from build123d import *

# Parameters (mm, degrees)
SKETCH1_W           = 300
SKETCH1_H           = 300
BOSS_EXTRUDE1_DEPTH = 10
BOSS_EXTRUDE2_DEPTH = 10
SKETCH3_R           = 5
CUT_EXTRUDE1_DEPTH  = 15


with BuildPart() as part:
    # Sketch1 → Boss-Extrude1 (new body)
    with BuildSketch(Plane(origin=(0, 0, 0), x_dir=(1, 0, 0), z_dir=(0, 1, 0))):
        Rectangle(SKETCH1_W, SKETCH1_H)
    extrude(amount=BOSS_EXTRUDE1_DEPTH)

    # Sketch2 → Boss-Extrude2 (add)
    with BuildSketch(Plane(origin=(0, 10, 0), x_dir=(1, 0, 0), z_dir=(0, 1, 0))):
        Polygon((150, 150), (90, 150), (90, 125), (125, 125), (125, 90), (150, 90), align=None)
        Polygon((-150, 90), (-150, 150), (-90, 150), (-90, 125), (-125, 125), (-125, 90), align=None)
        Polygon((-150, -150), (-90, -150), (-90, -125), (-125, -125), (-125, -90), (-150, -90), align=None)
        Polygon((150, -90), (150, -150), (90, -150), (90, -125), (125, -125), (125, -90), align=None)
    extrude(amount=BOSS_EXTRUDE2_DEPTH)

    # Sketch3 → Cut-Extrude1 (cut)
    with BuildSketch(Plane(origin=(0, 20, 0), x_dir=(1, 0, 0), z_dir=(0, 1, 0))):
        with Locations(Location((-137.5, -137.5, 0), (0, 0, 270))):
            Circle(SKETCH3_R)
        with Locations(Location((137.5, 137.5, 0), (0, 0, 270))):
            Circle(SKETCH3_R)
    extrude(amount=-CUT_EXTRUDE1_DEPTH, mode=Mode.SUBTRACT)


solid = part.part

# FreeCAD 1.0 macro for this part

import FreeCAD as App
import Part
import Sketcher
from FreeCAD import Vector
Q = App.Units.Quantity


def add_polygon(sketch, points):
    """Adds a closed chain of lines whose ends are joined by coincident constraints."""
    first, n = sketch.GeometryCount, len(points)
    for a, b in zip(points, points[1:] + points[:1]):
        sketch.addGeometry(Part.LineSegment(App.Vector(*a, 0), App.Vector(*b, 0)), False)
    for i in range(n):
        sketch.addConstraint(Sketcher.Constraint("Coincident", first + i, 2, first + (i + 1) % n, 1))

doc = App.newDocument("Part")
body = doc.addObject("PartDesign::Body", "Body")

sketch1 = doc.addObject("Sketcher::SketchObject", "Sketch")
body.addObject(sketch1)
sketch1.AttachmentSupport = (doc.XZ_Plane, [""])
sketch1.MapMode = "FlatFace"
add_polygon(sketch1, [(-150, -150), (-150, 150), (150, 150), (150, -150)])
sketch1.addConstraint([
    Sketcher.Constraint("Vertical", 0),
    Sketcher.Constraint("Horizontal", 1),
    Sketcher.Constraint("Vertical", 2),
    Sketcher.Constraint("Horizontal", 3),
    Sketcher.Constraint("Symmetric", 0, 2, 2, 2, -1, 1),
    Sketcher.Constraint("Equal", 3, 0),
    Sketcher.Constraint("DistanceX", 1, 1, 1, 2, Q("300 mm")),
])
pad1 = doc.addObject("PartDesign::Pad", "Pad")
body.addObject(pad1)
pad1.Profile = sketch1
pad1.Length = 10
pad1.Reversed = True

sketch2 = doc.addObject("Sketcher::SketchObject", "Sketch001")
body.addObject(sketch2)
sketch2.AttachmentSupport = (doc.XZ_Plane, [""])
sketch2.MapMode = "FlatFace"
sketch2.AttachmentOffset = App.Placement(Vector(0, 0, -10), App.Rotation())
add_polygon(sketch2, [(150, -150), (90, -150), (90, -125), (125, -125), (125, -90), (150, -90)])
add_polygon(sketch2, [(-150, -150), (-150, -90), (-125, -90), (-125, -125), (-90, -125), (-90, -150)])
add_polygon(sketch2, [(-150, 150), (-90, 150), (-90, 125), (-125, 125), (-125, 90), (-150, 90)])
add_polygon(sketch2, [(150, 150), (150, 90), (125, 90), (125, 125), (90, 125), (90, 150)])
sketch2.addConstraint([
    Sketcher.Constraint("Horizontal", 0),
    Sketcher.Constraint("Vertical", 1),
    Sketcher.Constraint("Horizontal", 2),
    Sketcher.Constraint("Vertical", 3),
    Sketcher.Constraint("Horizontal", 4),
    Sketcher.Constraint("Vertical", 5),
    Sketcher.Constraint("Vertical", 6),
    Sketcher.Constraint("Horizontal", 7),
    Sketcher.Constraint("Vertical", 8),
    Sketcher.Constraint("Horizontal", 9),
    Sketcher.Constraint("Vertical", 10),
    Sketcher.Constraint("Horizontal", 11),
    Sketcher.Constraint("Horizontal", 12),
    Sketcher.Constraint("Vertical", 13),
    Sketcher.Constraint("Horizontal", 14),
    Sketcher.Constraint("Vertical", 15),
    Sketcher.Constraint("Horizontal", 16),
    Sketcher.Constraint("Vertical", 17),
    Sketcher.Constraint("Vertical", 18),
    Sketcher.Constraint("Horizontal", 19),
    Sketcher.Constraint("Vertical", 20),
    Sketcher.Constraint("Horizontal", 21),
    Sketcher.Constraint("Vertical", 22),
    Sketcher.Constraint("Horizontal", 23),
    Sketcher.Constraint("Symmetric", 0, 2, 12, 2, -1, 1),
    Sketcher.Constraint("Symmetric", 2, 2, 14, 2, -1, 1),
    Sketcher.Constraint("Symmetric", 4, 2, 16, 2, -1, 1),
    Sketcher.Constraint("Symmetric", 6, 2, 18, 2, -1, 1),
    Sketcher.Constraint("Symmetric", 8, 2, 20, 2, -1, 1),
    Sketcher.Constraint("Symmetric", 10, 2, 22, 2, -1, 1),
    Sketcher.Constraint("Symmetric", 4, 2, 6, 2, -2),
    Sketcher.Constraint("Symmetric", 2, 2, 8, 2, -2),
    Sketcher.Constraint("Symmetric", 0, 2, 10, 2, -2),
    Sketcher.Constraint("Equal", 19, 1),
    Sketcher.Constraint("Equal", 21, 3),
    Sketcher.Constraint("DistanceX", 0, 2, 0, 1, Q("60 mm")),
    Sketcher.Constraint("DistanceX", 2, 1, 2, 2, Q("35 mm")),
    Sketcher.Constraint("DistanceX", -1, 1, 0, 2, Q("90 mm")),
    Sketcher.Constraint("DistanceY", 0, 2, -1, 1, Q("150 mm")),
])
pad2 = doc.addObject("PartDesign::Pad", "Pad001")
body.addObject(pad2)
pad2.Profile = sketch2
pad2.Length = 10
pad2.Reversed = True

sketch3 = doc.addObject("Sketcher::SketchObject", "Sketch002")
body.addObject(sketch3)
sketch3.AttachmentSupport = (doc.XZ_Plane, [""])
sketch3.MapMode = "FlatFace"
sketch3.AttachmentOffset = App.Placement(Vector(0, 0, -20), App.Rotation())
sketch3.addGeometry([
    Part.Circle(Vector(-137.5, 137.5, 0), Vector(0, 0, 1), 5),
    Part.Circle(Vector(137.5, -137.5, 0), Vector(0, 0, 1), 5),
], False)
sketch3.addConstraint([
    Sketcher.Constraint("Equal", 0, 1),
    Sketcher.Constraint("Symmetric", 0, 3, 1, 3, -1, 1),
    Sketcher.Constraint("Diameter", 0, Q("10 mm")),
    Sketcher.Constraint("DistanceX", 0, 3, 1, 3, Q("275 mm")),
    Sketcher.Constraint("DistanceY", 1, 3, 0, 3, Q("275 mm")),
])
pocket1 = doc.addObject("PartDesign::Pocket", "Pocket")
body.addObject(pocket1)
pocket1.Profile = sketch3
pocket1.Length = 15
pocket1.Reversed = True

doc.recompute()
